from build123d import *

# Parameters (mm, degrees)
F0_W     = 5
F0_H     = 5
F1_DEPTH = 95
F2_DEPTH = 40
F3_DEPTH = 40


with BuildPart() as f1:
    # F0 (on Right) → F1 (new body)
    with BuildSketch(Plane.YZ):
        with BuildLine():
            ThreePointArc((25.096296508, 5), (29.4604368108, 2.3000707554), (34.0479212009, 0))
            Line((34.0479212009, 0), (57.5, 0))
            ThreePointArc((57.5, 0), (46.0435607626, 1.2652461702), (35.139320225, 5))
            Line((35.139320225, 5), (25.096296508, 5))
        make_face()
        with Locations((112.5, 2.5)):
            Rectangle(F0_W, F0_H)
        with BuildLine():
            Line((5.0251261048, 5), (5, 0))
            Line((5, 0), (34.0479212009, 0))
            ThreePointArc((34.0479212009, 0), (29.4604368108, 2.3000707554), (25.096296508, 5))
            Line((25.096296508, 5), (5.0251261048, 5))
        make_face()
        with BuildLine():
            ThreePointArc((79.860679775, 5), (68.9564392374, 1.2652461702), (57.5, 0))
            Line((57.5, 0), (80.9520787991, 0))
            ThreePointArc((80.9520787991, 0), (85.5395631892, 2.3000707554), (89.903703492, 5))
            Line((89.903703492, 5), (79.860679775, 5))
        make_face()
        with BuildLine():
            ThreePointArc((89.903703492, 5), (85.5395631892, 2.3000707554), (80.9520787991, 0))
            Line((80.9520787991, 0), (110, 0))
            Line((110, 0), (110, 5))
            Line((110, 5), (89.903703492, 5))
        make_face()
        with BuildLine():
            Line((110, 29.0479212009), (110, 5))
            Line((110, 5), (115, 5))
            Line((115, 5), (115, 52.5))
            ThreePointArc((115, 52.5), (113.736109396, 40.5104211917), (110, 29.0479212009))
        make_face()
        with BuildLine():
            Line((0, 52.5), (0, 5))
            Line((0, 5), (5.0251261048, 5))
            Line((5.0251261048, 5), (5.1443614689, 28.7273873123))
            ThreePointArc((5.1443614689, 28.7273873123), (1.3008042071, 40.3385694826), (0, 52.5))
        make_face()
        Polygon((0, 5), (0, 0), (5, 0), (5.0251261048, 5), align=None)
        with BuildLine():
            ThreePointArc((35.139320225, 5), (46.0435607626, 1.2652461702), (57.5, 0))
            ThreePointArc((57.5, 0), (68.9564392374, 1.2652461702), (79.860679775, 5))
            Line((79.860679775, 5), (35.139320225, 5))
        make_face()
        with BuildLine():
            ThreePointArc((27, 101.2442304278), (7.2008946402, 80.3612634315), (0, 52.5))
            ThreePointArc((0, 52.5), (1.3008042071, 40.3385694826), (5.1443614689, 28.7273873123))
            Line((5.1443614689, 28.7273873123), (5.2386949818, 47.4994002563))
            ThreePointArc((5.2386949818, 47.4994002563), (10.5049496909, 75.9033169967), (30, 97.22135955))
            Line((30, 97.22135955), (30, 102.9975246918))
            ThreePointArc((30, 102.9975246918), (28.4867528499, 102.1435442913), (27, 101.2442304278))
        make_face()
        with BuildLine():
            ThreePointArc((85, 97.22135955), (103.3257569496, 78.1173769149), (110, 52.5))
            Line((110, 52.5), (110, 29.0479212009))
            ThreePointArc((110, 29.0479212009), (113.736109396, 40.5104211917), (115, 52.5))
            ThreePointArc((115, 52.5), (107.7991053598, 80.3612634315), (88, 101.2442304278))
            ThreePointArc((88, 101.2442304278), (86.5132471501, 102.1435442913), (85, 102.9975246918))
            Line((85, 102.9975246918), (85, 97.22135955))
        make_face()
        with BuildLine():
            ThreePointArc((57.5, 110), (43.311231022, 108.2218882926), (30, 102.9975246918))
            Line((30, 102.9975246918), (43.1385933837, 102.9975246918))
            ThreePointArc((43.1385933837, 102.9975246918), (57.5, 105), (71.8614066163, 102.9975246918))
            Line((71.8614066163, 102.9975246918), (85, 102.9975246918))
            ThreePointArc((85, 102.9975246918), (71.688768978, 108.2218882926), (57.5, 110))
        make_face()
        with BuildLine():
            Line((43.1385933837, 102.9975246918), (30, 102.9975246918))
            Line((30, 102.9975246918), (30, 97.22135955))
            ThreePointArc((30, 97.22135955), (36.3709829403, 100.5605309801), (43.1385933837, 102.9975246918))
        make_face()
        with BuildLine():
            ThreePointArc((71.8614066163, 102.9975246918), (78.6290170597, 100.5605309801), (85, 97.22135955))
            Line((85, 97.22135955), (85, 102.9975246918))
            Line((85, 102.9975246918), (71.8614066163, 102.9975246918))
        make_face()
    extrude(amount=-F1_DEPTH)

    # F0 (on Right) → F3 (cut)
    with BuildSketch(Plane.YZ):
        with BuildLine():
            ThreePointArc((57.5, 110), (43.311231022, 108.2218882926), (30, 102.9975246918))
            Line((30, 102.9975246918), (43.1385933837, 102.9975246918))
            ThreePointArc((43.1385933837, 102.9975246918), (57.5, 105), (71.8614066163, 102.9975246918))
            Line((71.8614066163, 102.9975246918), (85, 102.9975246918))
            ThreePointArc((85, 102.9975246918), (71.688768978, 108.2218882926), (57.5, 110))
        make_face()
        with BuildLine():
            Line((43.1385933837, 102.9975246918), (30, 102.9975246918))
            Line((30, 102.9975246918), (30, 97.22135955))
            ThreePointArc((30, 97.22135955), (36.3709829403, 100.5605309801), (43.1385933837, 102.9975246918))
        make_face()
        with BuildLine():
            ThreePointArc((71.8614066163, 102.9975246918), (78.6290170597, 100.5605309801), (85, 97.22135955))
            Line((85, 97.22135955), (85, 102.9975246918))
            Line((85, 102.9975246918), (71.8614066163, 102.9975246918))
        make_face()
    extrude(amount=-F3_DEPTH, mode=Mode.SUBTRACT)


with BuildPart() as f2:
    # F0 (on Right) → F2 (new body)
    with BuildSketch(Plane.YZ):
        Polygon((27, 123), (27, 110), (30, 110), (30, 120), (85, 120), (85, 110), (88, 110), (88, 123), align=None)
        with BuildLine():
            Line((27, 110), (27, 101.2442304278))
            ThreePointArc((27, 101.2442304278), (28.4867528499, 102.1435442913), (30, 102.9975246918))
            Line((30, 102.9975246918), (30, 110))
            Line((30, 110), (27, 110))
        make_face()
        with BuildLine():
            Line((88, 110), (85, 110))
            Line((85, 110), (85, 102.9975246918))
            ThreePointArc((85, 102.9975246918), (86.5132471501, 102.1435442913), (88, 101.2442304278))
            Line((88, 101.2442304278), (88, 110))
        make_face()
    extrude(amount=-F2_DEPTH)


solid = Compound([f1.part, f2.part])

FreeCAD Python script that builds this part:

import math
import FreeCAD as App
import Part
import Sketcher
from FreeCAD import Vector

doc = App.newDocument("Part")
body = doc.addObject("PartDesign::Body", "Body")

sketch1 = body.newObject("Sketcher::SketchObject", "Sketch")
sketch1.AttachmentSupport = (doc.getObject("YZ_Plane"), [""])
sketch1.MapMode = "FlatFace"
sketch1.addGeometry(Part.ArcOfCircle(Part.Circle(Vector(57.5, 52.5, 0), Vector(0, 0, 1), 57.5), math.radians(57.97), math.radians(61.43)), False)
sketch1.addGeometry(Part.ArcOfCircle(Part.Circle(Vector(57.5, 52.5, 0), Vector(0, 0, 1), 57.5), math.radians(61), math.radians(90)), False)
sketch1.addGeometry(Part.ArcOfCircle(Part.Circle(Vector(57.5, 52.5, 0), Vector(0, 0, 1), 57.5), math.radians(90), math.radians(119)), False)
sketch1.addGeometry(Part.ArcOfCircle(Part.Circle(Vector(57.5, 52.5, 0), Vector(0, 0, 1), 57.5), math.radians(118.57), math.radians(122.03)), False)
sketch1.addGeometry(Part.ArcOfCircle(Part.Circle(Vector(57.5, 52.5, 0), Vector(0, 0, 1), 57.5), math.radians(122), math.radians(180)), False)
sketch1.addGeometry(Part.LineSegment(Vector(0, 52.5, 0), Vector(0, 0, 0)), False)
sketch1.addGeometry(Part.LineSegment(Vector(0, 0, 0), Vector(115, 0, 0)), False)
sketch1.addGeometry(Part.LineSegment(Vector(115, 0, 0), Vector(115, 52.5, 0)), False)
sketch1.addGeometry(Part.ArcOfCircle(Part.Circle(Vector(57.5, 52.5, 0), Vector(0, 0, 1), 57.5), math.radians(0), math.radians(58)), False)
sketch1.addGeometry(Part.ArcOfCircle(Part.Circle(Vector(57.5, 52.5, 0), Vector(0, 0, 1), 52.5), math.radians(74), math.radians(106)), False)
sketch1.addGeometry(Part.ArcOfCircle(Part.Circle(Vector(57.5, 52.5, 0), Vector(0, 0, 1), 52.5), math.radians(58.41), math.radians(74.12)), False)
sketch1.addGeometry(Part.ArcOfCircle(Part.Circle(Vector(57.5, 52.5, 0), Vector(0, 0, 1), 52.5), math.radians(0), math.radians(58)), False)
sketch1.addGeometry(Part.LineSegment(Vector(110, 52.5, 0), Vector(110, 5, 0)), False)
sketch1.addGeometry(Part.LineSegment(Vector(110, 5, 0), Vector(5, 5, 0)), False)
sketch1.addGeometry(Part.LineSegment(Vector(5, 5, 0), Vector(5.1, 28.7, 0)), False)
sketch1.addGeometry(Part.LineSegment(Vector(5.1, 28.7, 0), Vector(5.2, 47.5, 0)), False)
sketch1.addGeometry(Part.ArcOfCircle(Part.Circle(Vector(57.5, 52.5, 0), Vector(0, 0, 1), 52.5), math.radians(122), math.radians(185)), False)
sketch1.addGeometry(Part.ArcOfCircle(Part.Circle(Vector(57.5, 52.5, 0), Vector(0, 0, 1), 52.5), math.radians(105.88), math.radians(121.59)), False)
sketch1.addConstraint(Sketcher.Constraint("Tangent", 0, 2, 1, 1))
sketch1.addConstraint(Sketcher.Constraint("Tangent", 1, 2, 2, 1))
sketch1.addConstraint(Sketcher.Constraint("Tangent", 2, 2, 3, 1))
sketch1.addConstraint(Sketcher.Constraint("Tangent", 3, 2, 4, 1))
sketch1.addConstraint(Sketcher.Constraint("Tangent", 4, 2, 5, 1))
sketch1.addConstraint(Sketcher.Constraint("Coincident", 5, 2, 6, 1))
sketch1.addConstraint(Sketcher.Constraint("Coincident", 6, 2, 7, 1))
sketch1.addConstraint(Sketcher.Constraint("Tangent", 7, 2, 8, 1))
sketch1.addConstraint(Sketcher.Constraint("Tangent", 8, 2, 0, 1))
sketch1.addConstraint(Sketcher.Constraint("Tangent", 9, 1, 10, 2))
sketch1.addConstraint(Sketcher.Constraint("Tangent", 10, 1, 11, 2))
sketch1.addConstraint(Sketcher.Constraint("Tangent", 11, 1, 12, 1))
sketch1.addConstraint(Sketcher.Constraint("Coincident", 12, 2, 13, 1))
sketch1.addConstraint(Sketcher.Constraint("Coincident", 13, 2, 14, 1))
sketch1.addConstraint(Sketcher.Constraint("Coincident", 14, 2, 15, 1))
sketch1.addConstraint(Sketcher.Constraint("Coincident", 15, 2, 16, 2))
sketch1.addConstraint(Sketcher.Constraint("Tangent", 16, 1, 17, 2))
sketch1.addConstraint(Sketcher.Constraint("Tangent", 17, 1, 9, 2))
sketch1.addConstraint(Sketcher.Constraint("Vertical", 5))
sketch1.addConstraint(Sketcher.Constraint("Horizontal", 6))
sketch1.addConstraint(Sketcher.Constraint("Vertical", 7))
sketch1.addConstraint(Sketcher.Constraint("Vertical", 12))
sketch1.addConstraint(Sketcher.Constraint("Horizontal", 13))
sketch1.addConstraint(Sketcher.Constraint("Coincident", 5, 2, -1, 1))
sketch1.addConstraint(Sketcher.Constraint("Coincident", 2, 3, 0, 3))
sketch1.addConstraint(Sketcher.Constraint("Coincident", 4, 3, 0, 3))
sketch1.addConstraint(Sketcher.Constraint("Coincident", 9, 3, 0, 3))
sketch1.addConstraint(Sketcher.Constraint("Coincident", 11, 3, 0, 3))
sketch1.addConstraint(Sketcher.Constraint("Coincident", 16, 3, 0, 3))
sketch1.addConstraint(Sketcher.Constraint("Equal", 4, 8))
sketch1.addConstraint(Sketcher.Constraint("Parallel", 14, 15))
sketch1.addConstraint(Sketcher.Constraint("Horizontal", 0, 2, 2, 2))
sketch1.addConstraint(Sketcher.Constraint("Horizontal", 3, 2, 8, 2))
sketch1.addConstraint(Sketcher.Constraint("Horizontal", 2, 2, 9, 1))
sketch1.addConstraint(Sketcher.Constraint("Horizontal", 10, 1, 16, 1))
sketch1.addConstraint(Sketcher.Constraint("Horizontal", 9, 1, 17, 1))
sketch1.addConstraint(Sketcher.Constraint("Vertical", 17, 3, 1, 2))
sketch1.addConstraint(Sketcher.Constraint("Vertical", 0, 2, 10, 1))
sketch1.addConstraint(Sketcher.Constraint("Radius", 0, 57.5))
sketch1.addConstraint(Sketcher.Constraint("Radius", 9, 52.5))
sketch1.addConstraint(Sketcher.Constraint("DistanceY", 5, 2, 5, 1, 52.5))
sketch1.addConstraint(Sketcher.Constraint("DistanceY", 12, 2, 12, 1, 47.5))
sketch1.addConstraint(Sketcher.Constraint("DistanceX", -1, 1, 0, 2, 85.0))
sketch1.addConstraint(Sketcher.Constraint("DistanceX", -1, 1, 3, 2, 27.0))
sketch1.addConstraint(Sketcher.Constraint("DistanceY", -1, 1, 15, 2, 47.4994))
sketch1.addConstraint(Sketcher.Constraint("Distance", 15, 18.77225))
sketch1.addConstraint(Sketcher.Constraint("DistanceX", 13, 2, 13, 1, 104.974874))
pad1 = body.newObject("PartDesign::Pad", "Pad")
pad1.Profile = sketch1
pad1.Length = 95
pad1.Reversed = True

sketch2 = body.newObject("Sketcher::SketchObject", "Sketch001")
sketch2.AttachmentSupport = (doc.getObject("YZ_Plane"), [""])
sketch2.MapMode = "FlatFace"
sketch2.addGeometry(Part.ArcOfCircle(Part.Circle(Vector(58, 53, 0), Vector(0, 0, 1), 57), math.radians(90), math.radians(119)), False)
sketch2.addGeometry(Part.LineSegment(Vector(30, 103, 0), Vector(30, 97, 0)), False)
sketch2.addGeometry(Part.ArcOfCircle(Part.Circle(Vector(58, 52, 0), Vector(0, 0, 1), 53), math.radians(105.88), math.radians(121.59)), False)
sketch2.addGeometry(Part.ArcOfCircle(Part.Circle(Vector(58, 53, 0), Vector(0, 0, 1), 52), math.radians(74), math.radians(106)), False)
sketch2.addGeometry(Part.ArcOfCircle(Part.Circle(Vector(58, 52, 0), Vector(0, 0, 1), 53), math.radians(58.41), math.radians(74.12)), False)
sketch2.addGeometry(Part.LineSegment(Vector(85, 97, 0), Vector(85, 103, 0)), False)
sketch2.addGeometry(Part.ArcOfCircle(Part.Circle(Vector(58, 53, 0), Vector(0, 0, 1), 57), math.radians(61), math.radians(90)), False)
sketch2.addConstraint(Sketcher.Constraint("Coincident", 0, 2, 1, 1))
sketch2.addConstraint(Sketcher.Constraint("Coincident", 1, 2, 2, 2))
sketch2.addConstraint(Sketcher.Constraint("Tangent", 2, 1, 3, 2))
sketch2.addConstraint(Sketcher.Constraint("Tangent", 3, 1, 4, 2))
sketch2.addConstraint(Sketcher.Constraint("Coincident", 4, 1, 5, 1))
sketch2.addConstraint(Sketcher.Constraint("Coincident", 5, 2, 6, 1))
sketch2.addConstraint(Sketcher.Constraint("Tangent", 6, 2, 0, 1))
sketch2.addConstraint(Sketcher.Constraint("Vertical", 1))
sketch2.addConstraint(Sketcher.Constraint("Vertical", 5))
sketch2.addConstraint(Sketcher.Constraint("Coincident", 2, 3, 0, 3))
sketch2.addConstraint(Sketcher.Constraint("Coincident", 4, 3, 0, 3))
sketch2.addConstraint(Sketcher.Constraint("Equal", 0, 6))
sketch2.addConstraint(Sketcher.Constraint("Horizontal", 0, 2, 2, 1))
sketch2.addConstraint(Sketcher.Constraint("Horizontal", 2, 1, 3, 1))
sketch2.addConstraint(Sketcher.Constraint("Horizontal", 1, 2, 4, 1))
sketch2.addConstraint(Sketcher.Constraint("Vertical", 4, 3, 6, 2))
sketch2.addConstraint(Sketcher.Constraint("Radius", 0, 57.5))
sketch2.addConstraint(Sketcher.Constraint("Radius", 2, 52.5))
sketch2.addConstraint(Sketcher.Constraint("DistanceX", -1, 1, 0, 2, 30.0))
sketch2.addConstraint(Sketcher.Constraint("DistanceX", -1, 1, 4, 1, 85.0))
sketch2.addConstraint(Sketcher.Constraint("DistanceY", -1, 1, 6, 2, 110.0))
pocket1 = body.newObject("PartDesign::Pocket", "Pocket")
pocket1.Profile = sketch2
pocket1.Length = 40
body2 = doc.addObject("PartDesign::Body", "Body001")

sketch3 = body2.newObject("Sketcher::SketchObject", "Sketch002")
sketch3.AttachmentSupport = (doc.getObject("YZ_Plane001"), [""])
sketch3.MapMode = "FlatFace"
sketch3.addGeometry(Part.LineSegment(Vector(27, 123, 0), Vector(27, 101.2, 0)), False)
sketch3.addGeometry(Part.ArcOfCircle(Part.Circle(Vector(57.5, 52.5, 0), Vector(0, 0, 1), 57.5), math.radians(118.57), math.radians(122.03)), False)
sketch3.addGeometry(Part.LineSegment(Vector(30, 103, 0), Vector(30, 120, 0)), False)
sketch3.addGeometry(Part.LineSegment(Vector(30, 120, 0), Vector(85, 120, 0)), False)
sketch3.addGeometry(Part.LineSegment(Vector(85, 120, 0), Vector(85, 103, 0)), False)
sketch3.addGeometry(Part.ArcOfCircle(Part.Circle(Vector(57.5, 52.5, 0), Vector(0, 0, 1), 57.5), math.radians(57.97), math.radians(61.43)), False)
sketch3.addGeometry(Part.LineSegment(Vector(88, 101.2, 0), Vector(88, 123, 0)), False)
sketch3.addGeometry(Part.LineSegment(Vector(88, 123, 0), Vector(27, 123, 0)), False)
sketch3.addConstraint(Sketcher.Constraint("Coincident", 0, 2, 1, 2))
sketch3.addConstraint(Sketcher.Constraint("Coincident", 1, 1, 2, 1))
sketch3.addConstraint(Sketcher.Constraint("Coincident", 2, 2, 3, 1))
sketch3.addConstraint(Sketcher.Constraint("Coincident", 3, 2, 4, 1))
sketch3.addConstraint(Sketcher.Constraint("Coincident", 4, 2, 5, 2))
sketch3.addConstraint(Sketcher.Constraint("Coincident", 5, 1, 6, 1))
sketch3.addConstraint(Sketcher.Constraint("Coincident", 6, 2, 7, 1))
sketch3.addConstraint(Sketcher.Constraint("Coincident", 7, 2, 0, 1))
sketch3.addConstraint(Sketcher.Constraint("Vertical", 0))
sketch3.addConstraint(Sketcher.Constraint("Vertical", 2))
sketch3.addConstraint(Sketcher.Constraint("Horizontal", 3))
sketch3.addConstraint(Sketcher.Constraint("Vertical", 4))
sketch3.addConstraint(Sketcher.Constraint("Vertical", 6))
sketch3.addConstraint(Sketcher.Constraint("Horizontal", 7))
sketch3.addConstraint(Sketcher.Constraint("Coincident", 5, 3, 1, 3))
sketch3.addConstraint(Sketcher.Constraint("Equal", 1, 5))
sketch3.addConstraint(Sketcher.Constraint("Horizontal", 1, 1, 4, 2))
sketch3.addConstraint(Sketcher.Constraint("Horizontal", 0, 2, 5, 1))
sketch3.addConstraint(Sketcher.Constraint("Radius", 1, 57.5))
sketch3.addConstraint(Sketcher.Constraint("DistanceX", 3, 1, 3, 2, 55.0))
sketch3.addConstraint(Sketcher.Constraint("DistanceX", 7, 2, 7, 1, 61.0))
sketch3.addConstraint(Sketcher.Constraint("DistanceX", -1, 1, 0, 2, 27.0))
sketch3.addConstraint(Sketcher.Constraint("DistanceY", -1, 1, 2, 2, 120.0))
sketch3.addConstraint(Sketcher.Constraint("DistanceY", -1, 1, 6, 2, 123.0))
sketch3.addConstraint(Sketcher.Constraint("DistanceY", -1, 1, 1, 3, 52.5))
pad2 = body2.newObject("PartDesign::Pad", "Pad001")
pad2.Profile = sketch3
pad2.Length = 40
pad2.Reversed = True

doc.recompute()
